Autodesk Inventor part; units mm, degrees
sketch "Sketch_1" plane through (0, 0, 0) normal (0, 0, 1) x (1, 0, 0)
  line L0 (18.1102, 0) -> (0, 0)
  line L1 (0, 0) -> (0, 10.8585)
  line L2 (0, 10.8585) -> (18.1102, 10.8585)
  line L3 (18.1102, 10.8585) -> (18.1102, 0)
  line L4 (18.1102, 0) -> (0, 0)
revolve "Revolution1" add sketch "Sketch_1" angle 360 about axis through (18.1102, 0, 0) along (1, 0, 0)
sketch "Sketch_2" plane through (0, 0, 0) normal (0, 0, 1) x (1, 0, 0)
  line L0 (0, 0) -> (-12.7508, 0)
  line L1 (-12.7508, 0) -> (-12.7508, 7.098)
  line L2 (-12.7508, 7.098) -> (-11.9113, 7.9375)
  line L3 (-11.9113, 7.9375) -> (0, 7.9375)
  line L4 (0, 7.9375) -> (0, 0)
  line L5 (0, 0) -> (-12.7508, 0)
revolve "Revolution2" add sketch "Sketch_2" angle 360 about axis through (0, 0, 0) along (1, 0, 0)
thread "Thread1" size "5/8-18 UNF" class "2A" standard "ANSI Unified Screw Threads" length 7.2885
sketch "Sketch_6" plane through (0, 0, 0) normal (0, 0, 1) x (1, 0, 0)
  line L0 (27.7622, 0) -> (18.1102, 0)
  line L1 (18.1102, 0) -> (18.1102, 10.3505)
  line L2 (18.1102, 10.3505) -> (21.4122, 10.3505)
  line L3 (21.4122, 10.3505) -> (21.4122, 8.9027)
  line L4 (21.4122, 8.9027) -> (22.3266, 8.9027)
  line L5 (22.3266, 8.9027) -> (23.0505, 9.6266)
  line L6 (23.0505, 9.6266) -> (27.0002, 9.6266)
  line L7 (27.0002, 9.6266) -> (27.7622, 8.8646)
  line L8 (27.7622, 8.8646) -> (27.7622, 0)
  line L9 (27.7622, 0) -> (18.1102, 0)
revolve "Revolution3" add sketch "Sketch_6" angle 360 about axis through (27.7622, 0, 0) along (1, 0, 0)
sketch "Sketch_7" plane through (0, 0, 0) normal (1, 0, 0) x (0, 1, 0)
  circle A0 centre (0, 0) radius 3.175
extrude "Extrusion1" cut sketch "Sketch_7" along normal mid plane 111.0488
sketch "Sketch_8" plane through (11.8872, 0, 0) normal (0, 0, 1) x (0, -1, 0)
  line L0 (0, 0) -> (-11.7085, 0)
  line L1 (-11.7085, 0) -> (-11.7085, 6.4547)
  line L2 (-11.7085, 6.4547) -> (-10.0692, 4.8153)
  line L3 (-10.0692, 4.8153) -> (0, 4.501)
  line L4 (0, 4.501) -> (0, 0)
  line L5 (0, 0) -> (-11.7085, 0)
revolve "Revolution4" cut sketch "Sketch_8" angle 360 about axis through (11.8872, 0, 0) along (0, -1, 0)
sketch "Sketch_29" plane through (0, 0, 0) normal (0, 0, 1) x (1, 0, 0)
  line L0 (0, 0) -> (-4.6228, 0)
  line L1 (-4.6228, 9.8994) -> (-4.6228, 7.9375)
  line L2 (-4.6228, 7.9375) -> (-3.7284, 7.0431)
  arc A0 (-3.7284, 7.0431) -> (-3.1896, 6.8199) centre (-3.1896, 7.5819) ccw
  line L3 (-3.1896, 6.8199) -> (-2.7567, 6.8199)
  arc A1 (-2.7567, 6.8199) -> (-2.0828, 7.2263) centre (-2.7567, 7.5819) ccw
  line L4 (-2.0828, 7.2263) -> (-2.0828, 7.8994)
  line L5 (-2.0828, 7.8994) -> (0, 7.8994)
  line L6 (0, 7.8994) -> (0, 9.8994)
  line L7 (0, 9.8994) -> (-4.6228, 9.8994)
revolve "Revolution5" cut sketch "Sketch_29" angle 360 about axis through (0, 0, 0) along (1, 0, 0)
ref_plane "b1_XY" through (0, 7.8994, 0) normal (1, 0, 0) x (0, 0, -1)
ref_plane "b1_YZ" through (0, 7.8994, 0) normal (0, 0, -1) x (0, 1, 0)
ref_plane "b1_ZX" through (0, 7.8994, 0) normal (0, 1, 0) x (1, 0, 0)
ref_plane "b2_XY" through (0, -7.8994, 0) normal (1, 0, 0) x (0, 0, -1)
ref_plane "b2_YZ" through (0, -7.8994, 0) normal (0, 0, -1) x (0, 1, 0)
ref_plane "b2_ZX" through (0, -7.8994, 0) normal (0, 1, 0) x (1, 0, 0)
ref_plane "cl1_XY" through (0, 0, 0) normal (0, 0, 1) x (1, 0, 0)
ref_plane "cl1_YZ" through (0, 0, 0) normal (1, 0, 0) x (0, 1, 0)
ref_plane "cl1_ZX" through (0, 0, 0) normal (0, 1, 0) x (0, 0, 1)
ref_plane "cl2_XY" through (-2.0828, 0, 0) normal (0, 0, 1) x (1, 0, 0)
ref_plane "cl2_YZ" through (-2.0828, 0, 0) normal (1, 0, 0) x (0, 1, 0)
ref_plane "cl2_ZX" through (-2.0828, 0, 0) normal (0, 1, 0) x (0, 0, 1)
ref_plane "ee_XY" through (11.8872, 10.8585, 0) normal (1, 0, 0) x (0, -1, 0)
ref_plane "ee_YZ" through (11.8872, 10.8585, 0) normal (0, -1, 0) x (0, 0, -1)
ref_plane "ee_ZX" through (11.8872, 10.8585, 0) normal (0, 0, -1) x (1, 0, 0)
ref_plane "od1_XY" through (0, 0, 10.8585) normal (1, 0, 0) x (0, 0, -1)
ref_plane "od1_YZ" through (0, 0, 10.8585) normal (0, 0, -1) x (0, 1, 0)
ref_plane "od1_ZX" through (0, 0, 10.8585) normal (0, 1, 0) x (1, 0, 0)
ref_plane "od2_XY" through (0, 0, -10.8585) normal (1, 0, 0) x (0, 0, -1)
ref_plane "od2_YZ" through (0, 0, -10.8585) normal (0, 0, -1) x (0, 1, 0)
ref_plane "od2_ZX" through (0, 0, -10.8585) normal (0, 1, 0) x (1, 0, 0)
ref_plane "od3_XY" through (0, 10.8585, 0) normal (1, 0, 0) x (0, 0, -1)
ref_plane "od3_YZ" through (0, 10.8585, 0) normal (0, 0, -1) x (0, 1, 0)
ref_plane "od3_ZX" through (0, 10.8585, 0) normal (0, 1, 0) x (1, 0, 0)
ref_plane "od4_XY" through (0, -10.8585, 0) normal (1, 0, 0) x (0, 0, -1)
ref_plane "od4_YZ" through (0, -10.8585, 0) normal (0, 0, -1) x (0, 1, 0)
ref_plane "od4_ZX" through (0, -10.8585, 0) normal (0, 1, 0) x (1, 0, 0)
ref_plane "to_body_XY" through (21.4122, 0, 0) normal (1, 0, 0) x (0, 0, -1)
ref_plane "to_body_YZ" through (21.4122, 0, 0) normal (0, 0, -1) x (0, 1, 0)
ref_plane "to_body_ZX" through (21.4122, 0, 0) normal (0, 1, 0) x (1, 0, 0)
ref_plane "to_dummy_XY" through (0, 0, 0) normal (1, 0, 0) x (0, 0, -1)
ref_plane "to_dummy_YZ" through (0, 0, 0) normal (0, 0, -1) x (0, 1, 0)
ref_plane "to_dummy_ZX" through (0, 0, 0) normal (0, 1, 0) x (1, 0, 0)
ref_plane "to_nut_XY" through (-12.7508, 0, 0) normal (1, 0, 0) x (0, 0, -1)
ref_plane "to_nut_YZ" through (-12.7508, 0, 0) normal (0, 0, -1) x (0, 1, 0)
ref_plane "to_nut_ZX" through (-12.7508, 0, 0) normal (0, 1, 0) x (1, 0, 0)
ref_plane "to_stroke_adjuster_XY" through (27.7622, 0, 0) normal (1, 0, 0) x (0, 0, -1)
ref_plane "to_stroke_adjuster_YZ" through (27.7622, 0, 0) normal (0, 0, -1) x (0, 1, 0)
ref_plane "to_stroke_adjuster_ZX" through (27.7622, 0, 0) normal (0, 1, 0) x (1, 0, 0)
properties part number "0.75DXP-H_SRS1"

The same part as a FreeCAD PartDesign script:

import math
import FreeCAD as App
import Part
import Sketcher

V = App.Vector
Q = App.Units.Quantity


def add_polygon(sketch, points):
    """Adds a closed chain of lines whose ends are joined by coincident constraints."""
    first, n = sketch.GeometryCount, len(points)
    for a, b in zip(points, points[1:] + points[:1]):
        sketch.addGeometry(Part.LineSegment(App.Vector(*a, 0), App.Vector(*b, 0)), False)
    for i in range(n):
        sketch.addConstraint(Sketcher.Constraint("Coincident", first + i, 2, first + (i + 1) % n, 1))

doc = App.newDocument("Part")
params = doc.addObject("Spreadsheet::Sheet", "Params")
for row, (alias, value) in enumerate([
    ("sketch1_width", "0.713 in"),
    ("revolution_angle", "360 deg"),
    ("sketch2_width", "0.502 in"),
    ("sketch2_height", "0.3125 in"),
    ("revolution2_angle", "360 deg"),
    ("sketch3_width", "0.38 in"),
    ("sketch3_width2", "0.13 in"),
    ("sketch3_width3", "0.036 in"),
    ("sketch3_height", "0.349 in"),
    ("sketch3_height2", "0.057 in"),
    ("revolution3_angle", "360 deg"),
    ("sketch4_diameter", "0.25 in"),
    ("pocket1_length", "4.372 in"),
    ("groove_angle", "360 deg"),
    ("sketch6_radius", "0.03 in"),
    ("sketch6_width", "0.182 in"),
    ("sketch6_width2", "0.082 in"),
    ("groove2_angle", "360 deg"),
], start=1):
    params.set(f"A{row}", alias)
    params.set(f"B{row}", "=" + value)
    params.setAlias(f"B{row}", alias)

body = doc.addObject("PartDesign::Body", "Body")

# Sketch on XY plane
sketch1 = body.newObject("Sketcher::SketchObject", "Sketch")
sketch1.AttachmentSupport = (doc.getObject("XY_Plane"), [""])
sketch1.MapMode = "FlatFace"
add_polygon(sketch1, [(0, 0), (18.1102, 0), (18.1102, 10.8585), (0, 10.8585)])  # lines 0-3
sketch1.addConstraint(Sketcher.Constraint("Horizontal", 0))
sketch1.addConstraint(Sketcher.Constraint("Vertical", 1))
sketch1.addConstraint(Sketcher.Constraint("Horizontal", 2))
sketch1.addConstraint(Sketcher.Constraint("Vertical", 3))
sketch1.addConstraint(Sketcher.Constraint("Coincident", 3, 2, -1, 1))
sketch1.addConstraint(Sketcher.Constraint("DistanceX", 0, 1, 0, 2, Q("0.713 in")))
sketch1.addConstraint(Sketcher.Constraint("DistanceY", 1, 1, 1, 2, Q("0.4275 in")))
sketch1.setExpression("Constraints[9]", "Params.sketch1_width")
revolution = body.newObject("PartDesign::Revolution", "Revolution")
revolution.Profile = sketch1
revolution.ReferenceAxis = (sketch1, ["H_Axis"])
revolution.setExpression("Angle", "Params.revolution_angle")

# Sketch on XY plane
sketch2 = body.newObject("Sketcher::SketchObject", "Sketch001")
sketch2.AttachmentSupport = (doc.getObject("XY_Plane"), [""])
sketch2.MapMode = "FlatFace"
add_polygon(sketch2, [(-12.7508, 0), (0, 0), (0, 7.9375), (-11.9113, 7.9375), (-12.7508, 7.098)])  # lines 0-4
sketch2.addConstraint(Sketcher.Constraint("Horizontal", 0))
sketch2.addConstraint(Sketcher.Constraint("Vertical", 1))
sketch2.addConstraint(Sketcher.Constraint("Horizontal", 2))
sketch2.addConstraint(Sketcher.Constraint("Vertical", 4))
sketch2.addConstraint(Sketcher.Constraint("Coincident", 0, 2, -1, 1))
sketch2.addConstraint(Sketcher.Constraint("Angle", 3, Q("-135 deg")))
sketch2.addConstraint(Sketcher.Constraint("DistanceX", 0, 1, 0, 2, Q("0.502 in")))
sketch2.addConstraint(Sketcher.Constraint("DistanceY", 1, 1, 1, 2, Q("0.3125 in")))
sketch2.addConstraint(Sketcher.Constraint("DistanceX", 2, 2, 2, 1, Q("11.9113 mm")))
sketch2.setExpression("Constraints[11]", "Params.sketch2_width")
sketch2.setExpression("Constraints[12]", "Params.sketch2_height")
revolution2 = body.newObject("PartDesign::Revolution", "Revolution001")
revolution2.Profile = sketch2
revolution2.ReferenceAxis = (sketch2, ["H_Axis"])
revolution2.setExpression("Angle", "Params.revolution2_angle")

# Sketch on XY plane
sketch3 = body.newObject("Sketcher::SketchObject", "Sketch002")
sketch3.AttachmentSupport = (doc.getObject("XY_Plane"), [""])
sketch3.MapMode = "FlatFace"
add_polygon(sketch3, [(18.1102, 0), (27.7622, 0), (27.7622, 8.8646), (27.0002, 9.6266), (23.0505, 9.6266), (22.3266, 8.9027), (21.4122, 8.9027), (21.4122, 10.3505), (18.1102, 10.3505)])  # lines 0-8
sketch3.addConstraint(Sketcher.Constraint("Horizontal", 0))
sketch3.addConstraint(Sketcher.Constraint("Vertical", 1))
sketch3.addConstraint(Sketcher.Constraint("Horizontal", 3))
sketch3.addConstraint(Sketcher.Constraint("Horizontal", 5))
sketch3.addConstraint(Sketcher.Constraint("Vertical", 6))
sketch3.addConstraint(Sketcher.Constraint("Horizontal", 7))
sketch3.addConstraint(Sketcher.Constraint("Vertical", 8))
sketch3.addConstraint(Sketcher.Constraint("PointOnObject", 0, 2, -1))
sketch3.addConstraint(Sketcher.Constraint("Perpendicular", 2, 4))
sketch3.addConstraint(Sketcher.Constraint("Angle", 2, Q("135 deg")))
sketch3.addConstraint(Sketcher.Constraint("DistanceX", 0, 1, 0, 2, Q("0.38 in")))
sketch3.addConstraint(Sketcher.Constraint("DistanceX", 7, 2, 7, 1, Q("0.13 in")))
sketch3.addConstraint(Sketcher.Constraint("DistanceX", 5, 2, 5, 1, Q("0.036 in")))
sketch3.addConstraint(Sketcher.Constraint("DistanceY", 1, 1, 1, 2, Q("0.349 in")))
sketch3.addConstraint(Sketcher.Constraint("DistanceY", 6, 1, 6, 2, Q("0.057 in")))
sketch3.addConstraint(Sketcher.Constraint("DistanceX", 2, 2, 1, 2, Q("0.03 in")))
sketch3.addConstraint(Sketcher.Constraint("DistanceX", 3, 2, 3, 1, Q("0.1555 in")))
sketch3.addConstraint(Sketcher.Constraint("DistanceX", -1, 1, 0, 2, Q("1.093 in")))
sketch3.setExpression("Constraints[19]", "Params.sketch3_width")
sketch3.setExpression("Constraints[20]", "Params.sketch3_width2")
sketch3.setExpression("Constraints[21]", "Params.sketch3_width3")
sketch3.setExpression("Constraints[22]", "Params.sketch3_height")
sketch3.setExpression("Constraints[23]", "Params.sketch3_height2")
revolution3 = body.newObject("PartDesign::Revolution", "Revolution002")
revolution3.Profile = sketch3
revolution3.ReferenceAxis = (sketch3, ["H_Axis"])
revolution3.setExpression("Angle", "Params.revolution3_angle")

# Sketch on YZ plane
sketch4 = body.newObject("Sketcher::SketchObject", "Sketch003")
sketch4.AttachmentSupport = (doc.getObject("YZ_Plane"), [""])
sketch4.MapMode = "FlatFace"
sketch4.addGeometry(Part.Circle(V(0, 0, 0), V(0, 0, 1), 3.175), False)
sketch4.addConstraint(Sketcher.Constraint("Coincident", 0, 3, -1, 1))
sketch4.addConstraint(Sketcher.Constraint("Diameter", 0, Q("0.25 in")))
sketch4.setExpression("Constraints[1]", "Params.sketch4_diameter")
pocket1 = body.newObject("PartDesign::Pocket", "Pocket")
pocket1.Profile = sketch4
pocket1.setExpression("Length", "Params.pocket1_length")
pocket1.Midplane = True

# Sketch on XY plane
sketch5 = body.newObject("Sketcher::SketchObject", "Sketch004")
sketch5.AttachmentSupport = (doc.getObject("XY_Plane"), [""])
sketch5.MapMode = "FlatFace"
add_polygon(sketch5, [(11.8872, 11.7085), (11.8872, 0), (16.3882, 0), (16.7025, 10.0692), (18.3419, 11.7085)])  # lines 0-4
sketch5.addGeometry(Part.LineSegment(V(11.8872, 11.7085, 0), V(11.8872, 0, 0)), True)  # axis
sketch5.addConstraint(Sketcher.Constraint("Vertical", 0))
sketch5.addConstraint(Sketcher.Constraint("Horizontal", 1))
sketch5.addConstraint(Sketcher.Constraint("Horizontal", 4))
sketch5.addConstraint(Sketcher.Constraint("Vertical", 5))
sketch5.addConstraint(Sketcher.Constraint("Coincident", 5, 1, 4, 2))
sketch5.addConstraint(Sketcher.Constraint("PointOnObject", 0, 2, -1))
sketch5.addConstraint(Sketcher.Constraint("PointOnObject", 5, 2, -1))
sketch5.addConstraint(Sketcher.Constraint("DistanceX", 1, 1, 1, 2, Q("0.1772 in")))
sketch5.addConstraint(Sketcher.Constraint("DistanceX", -1, 1, 0, 2, Q("0.468 in")))
sketch5.addConstraint(Sketcher.Constraint("DistanceX", 4, 2, 4, 1, Q("6.4547 mm")))
sketch5.addConstraint(Sketcher.Constraint("DistanceY", 0, 2, 0, 1, Q("11.7085 mm")))
sketch5.addConstraint(Sketcher.Constraint("Distance", 2, Q("10.074 mm")))
sketch5.addConstraint(Sketcher.Constraint("Distance", 3, Q("2.3184 mm")))
groove = body.newObject("PartDesign::Groove", "Groove")
groove.Profile = sketch5
groove.ReferenceAxis = (sketch5, ["Axis0"])
groove.setExpression("Angle", "Params.groove_angle")

# Sketch on XY plane
sketch6 = body.newObject("Sketcher::SketchObject", "Sketch005")
sketch6.AttachmentSupport = (doc.getObject("XY_Plane"), [""])
sketch6.MapMode = "FlatFace"
sketch6.addGeometry(Part.LineSegment(V(0, 9.8994, 0), V(-4.6228, 9.8994, 0)), False)
sketch6.addGeometry(Part.LineSegment(V(-4.6228, 9.8994, 0), V(-4.6228, 7.9375, 0)), False)
sketch6.addGeometry(Part.LineSegment(V(-4.6228, 7.9375, 0), V(-3.7284, 7.0431, 0)), False)
sketch6.addGeometry(Part.ArcOfCircle(Part.Circle(V(-3.1896, 7.5819, 0), V(0, 0, 1), 0.761978), math.radians(-135), math.radians(-90)), False)
sketch6.addGeometry(Part.LineSegment(V(-3.1896, 6.8199, 0), V(-2.7567, 6.8199, 0)), False)
sketch6.addGeometry(Part.ArcOfCircle(Part.Circle(V(-2.7567, 7.5819, 0), V(0, 0, 1), 0.762), math.radians(-90), math.radians(-27.819478)), False)
sketch6.addGeometry(Part.LineSegment(V(-2.0828, 7.2263, 0), V(-2.0828, 7.8994, 0)), False)
sketch6.addGeometry(Part.LineSegment(V(-2.0828, 7.8994, 0), V(0, 7.8994, 0)), False)
sketch6.addGeometry(Part.LineSegment(V(0, 7.8994, 0), V(0, 9.8994, 0)), False)
sketch6.addConstraint(Sketcher.Constraint("Coincident", 0, 2, 1, 1))
sketch6.addConstraint(Sketcher.Constraint("Coincident", 1, 2, 2, 1))
sketch6.addConstraint(Sketcher.Constraint("Tangent", 2, 2, 3, 1))
sketch6.addConstraint(Sketcher.Constraint("Tangent", 3, 2, 4, 1))
sketch6.addConstraint(Sketcher.Constraint("Tangent", 4, 2, 5, 1))
sketch6.addConstraint(Sketcher.Constraint("Coincident", 5, 2, 6, 1))
sketch6.addConstraint(Sketcher.Constraint("Coincident", 6, 2, 7, 1))
sketch6.addConstraint(Sketcher.Constraint("Coincident", 7, 2, 8, 1))
sketch6.addConstraint(Sketcher.Constraint("Coincident", 8, 2, 0, 1))
sketch6.addConstraint(Sketcher.Constraint("Horizontal", 0))
sketch6.addConstraint(Sketcher.Constraint("Vertical", 1))
sketch6.addConstraint(Sketcher.Constraint("Horizontal", 4))
sketch6.addConstraint(Sketcher.Constraint("Vertical", 6))
sketch6.addConstraint(Sketcher.Constraint("Horizontal", 7))
sketch6.addConstraint(Sketcher.Constraint("Vertical", 8))
sketch6.addConstraint(Sketcher.Constraint("Equal", 3, 5))
sketch6.addConstraint(Sketcher.Constraint("PointOnObject", 7, 2, -2))
sketch6.addConstraint(Sketcher.Constraint("Radius", 3, Q("0.03 in")))
sketch6.addConstraint(Sketcher.Constraint("Angle", 2, Q("-45 deg")))
sketch6.addConstraint(Sketcher.Constraint("DistanceX", 0, 2, 0, 1, Q("0.182 in")))
sketch6.addConstraint(Sketcher.Constraint("DistanceX", 7, 1, 7, 2, Q("0.082 in")))
sketch6.addConstraint(Sketcher.Constraint("DistanceY", 6, 1, 6, 2, Q("0.0265 in")))
sketch6.addConstraint(Sketcher.Constraint("DistanceY", -1, 1, 1, 2, Q("0.3125 in")))
sketch6.addConstraint(Sketcher.Constraint("DistanceY", -1, 1, 6, 2, Q("0.311 in")))
sketch6.addConstraint(Sketcher.Constraint("DistanceY", 3, 3, 1, 2, Q("0.014 in")))
sketch6.addConstraint(Sketcher.Constraint("DistanceY", 1, 2, 1, 1, Q("1.962 mm")))
sketch6.setExpression("Constraints[17]", "Params.sketch6_radius")
sketch6.setExpression("Constraints[19]", "Params.sketch6_width")
sketch6.setExpression("Constraints[20]", "Params.sketch6_width2")
groove2 = body.newObject("PartDesign::Groove", "Groove001")
groove2.Profile = sketch6
groove2.ReferenceAxis = (sketch6, ["H_Axis"])
groove2.setExpression("Angle", "Params.groove2_angle")

doc.recompute()
